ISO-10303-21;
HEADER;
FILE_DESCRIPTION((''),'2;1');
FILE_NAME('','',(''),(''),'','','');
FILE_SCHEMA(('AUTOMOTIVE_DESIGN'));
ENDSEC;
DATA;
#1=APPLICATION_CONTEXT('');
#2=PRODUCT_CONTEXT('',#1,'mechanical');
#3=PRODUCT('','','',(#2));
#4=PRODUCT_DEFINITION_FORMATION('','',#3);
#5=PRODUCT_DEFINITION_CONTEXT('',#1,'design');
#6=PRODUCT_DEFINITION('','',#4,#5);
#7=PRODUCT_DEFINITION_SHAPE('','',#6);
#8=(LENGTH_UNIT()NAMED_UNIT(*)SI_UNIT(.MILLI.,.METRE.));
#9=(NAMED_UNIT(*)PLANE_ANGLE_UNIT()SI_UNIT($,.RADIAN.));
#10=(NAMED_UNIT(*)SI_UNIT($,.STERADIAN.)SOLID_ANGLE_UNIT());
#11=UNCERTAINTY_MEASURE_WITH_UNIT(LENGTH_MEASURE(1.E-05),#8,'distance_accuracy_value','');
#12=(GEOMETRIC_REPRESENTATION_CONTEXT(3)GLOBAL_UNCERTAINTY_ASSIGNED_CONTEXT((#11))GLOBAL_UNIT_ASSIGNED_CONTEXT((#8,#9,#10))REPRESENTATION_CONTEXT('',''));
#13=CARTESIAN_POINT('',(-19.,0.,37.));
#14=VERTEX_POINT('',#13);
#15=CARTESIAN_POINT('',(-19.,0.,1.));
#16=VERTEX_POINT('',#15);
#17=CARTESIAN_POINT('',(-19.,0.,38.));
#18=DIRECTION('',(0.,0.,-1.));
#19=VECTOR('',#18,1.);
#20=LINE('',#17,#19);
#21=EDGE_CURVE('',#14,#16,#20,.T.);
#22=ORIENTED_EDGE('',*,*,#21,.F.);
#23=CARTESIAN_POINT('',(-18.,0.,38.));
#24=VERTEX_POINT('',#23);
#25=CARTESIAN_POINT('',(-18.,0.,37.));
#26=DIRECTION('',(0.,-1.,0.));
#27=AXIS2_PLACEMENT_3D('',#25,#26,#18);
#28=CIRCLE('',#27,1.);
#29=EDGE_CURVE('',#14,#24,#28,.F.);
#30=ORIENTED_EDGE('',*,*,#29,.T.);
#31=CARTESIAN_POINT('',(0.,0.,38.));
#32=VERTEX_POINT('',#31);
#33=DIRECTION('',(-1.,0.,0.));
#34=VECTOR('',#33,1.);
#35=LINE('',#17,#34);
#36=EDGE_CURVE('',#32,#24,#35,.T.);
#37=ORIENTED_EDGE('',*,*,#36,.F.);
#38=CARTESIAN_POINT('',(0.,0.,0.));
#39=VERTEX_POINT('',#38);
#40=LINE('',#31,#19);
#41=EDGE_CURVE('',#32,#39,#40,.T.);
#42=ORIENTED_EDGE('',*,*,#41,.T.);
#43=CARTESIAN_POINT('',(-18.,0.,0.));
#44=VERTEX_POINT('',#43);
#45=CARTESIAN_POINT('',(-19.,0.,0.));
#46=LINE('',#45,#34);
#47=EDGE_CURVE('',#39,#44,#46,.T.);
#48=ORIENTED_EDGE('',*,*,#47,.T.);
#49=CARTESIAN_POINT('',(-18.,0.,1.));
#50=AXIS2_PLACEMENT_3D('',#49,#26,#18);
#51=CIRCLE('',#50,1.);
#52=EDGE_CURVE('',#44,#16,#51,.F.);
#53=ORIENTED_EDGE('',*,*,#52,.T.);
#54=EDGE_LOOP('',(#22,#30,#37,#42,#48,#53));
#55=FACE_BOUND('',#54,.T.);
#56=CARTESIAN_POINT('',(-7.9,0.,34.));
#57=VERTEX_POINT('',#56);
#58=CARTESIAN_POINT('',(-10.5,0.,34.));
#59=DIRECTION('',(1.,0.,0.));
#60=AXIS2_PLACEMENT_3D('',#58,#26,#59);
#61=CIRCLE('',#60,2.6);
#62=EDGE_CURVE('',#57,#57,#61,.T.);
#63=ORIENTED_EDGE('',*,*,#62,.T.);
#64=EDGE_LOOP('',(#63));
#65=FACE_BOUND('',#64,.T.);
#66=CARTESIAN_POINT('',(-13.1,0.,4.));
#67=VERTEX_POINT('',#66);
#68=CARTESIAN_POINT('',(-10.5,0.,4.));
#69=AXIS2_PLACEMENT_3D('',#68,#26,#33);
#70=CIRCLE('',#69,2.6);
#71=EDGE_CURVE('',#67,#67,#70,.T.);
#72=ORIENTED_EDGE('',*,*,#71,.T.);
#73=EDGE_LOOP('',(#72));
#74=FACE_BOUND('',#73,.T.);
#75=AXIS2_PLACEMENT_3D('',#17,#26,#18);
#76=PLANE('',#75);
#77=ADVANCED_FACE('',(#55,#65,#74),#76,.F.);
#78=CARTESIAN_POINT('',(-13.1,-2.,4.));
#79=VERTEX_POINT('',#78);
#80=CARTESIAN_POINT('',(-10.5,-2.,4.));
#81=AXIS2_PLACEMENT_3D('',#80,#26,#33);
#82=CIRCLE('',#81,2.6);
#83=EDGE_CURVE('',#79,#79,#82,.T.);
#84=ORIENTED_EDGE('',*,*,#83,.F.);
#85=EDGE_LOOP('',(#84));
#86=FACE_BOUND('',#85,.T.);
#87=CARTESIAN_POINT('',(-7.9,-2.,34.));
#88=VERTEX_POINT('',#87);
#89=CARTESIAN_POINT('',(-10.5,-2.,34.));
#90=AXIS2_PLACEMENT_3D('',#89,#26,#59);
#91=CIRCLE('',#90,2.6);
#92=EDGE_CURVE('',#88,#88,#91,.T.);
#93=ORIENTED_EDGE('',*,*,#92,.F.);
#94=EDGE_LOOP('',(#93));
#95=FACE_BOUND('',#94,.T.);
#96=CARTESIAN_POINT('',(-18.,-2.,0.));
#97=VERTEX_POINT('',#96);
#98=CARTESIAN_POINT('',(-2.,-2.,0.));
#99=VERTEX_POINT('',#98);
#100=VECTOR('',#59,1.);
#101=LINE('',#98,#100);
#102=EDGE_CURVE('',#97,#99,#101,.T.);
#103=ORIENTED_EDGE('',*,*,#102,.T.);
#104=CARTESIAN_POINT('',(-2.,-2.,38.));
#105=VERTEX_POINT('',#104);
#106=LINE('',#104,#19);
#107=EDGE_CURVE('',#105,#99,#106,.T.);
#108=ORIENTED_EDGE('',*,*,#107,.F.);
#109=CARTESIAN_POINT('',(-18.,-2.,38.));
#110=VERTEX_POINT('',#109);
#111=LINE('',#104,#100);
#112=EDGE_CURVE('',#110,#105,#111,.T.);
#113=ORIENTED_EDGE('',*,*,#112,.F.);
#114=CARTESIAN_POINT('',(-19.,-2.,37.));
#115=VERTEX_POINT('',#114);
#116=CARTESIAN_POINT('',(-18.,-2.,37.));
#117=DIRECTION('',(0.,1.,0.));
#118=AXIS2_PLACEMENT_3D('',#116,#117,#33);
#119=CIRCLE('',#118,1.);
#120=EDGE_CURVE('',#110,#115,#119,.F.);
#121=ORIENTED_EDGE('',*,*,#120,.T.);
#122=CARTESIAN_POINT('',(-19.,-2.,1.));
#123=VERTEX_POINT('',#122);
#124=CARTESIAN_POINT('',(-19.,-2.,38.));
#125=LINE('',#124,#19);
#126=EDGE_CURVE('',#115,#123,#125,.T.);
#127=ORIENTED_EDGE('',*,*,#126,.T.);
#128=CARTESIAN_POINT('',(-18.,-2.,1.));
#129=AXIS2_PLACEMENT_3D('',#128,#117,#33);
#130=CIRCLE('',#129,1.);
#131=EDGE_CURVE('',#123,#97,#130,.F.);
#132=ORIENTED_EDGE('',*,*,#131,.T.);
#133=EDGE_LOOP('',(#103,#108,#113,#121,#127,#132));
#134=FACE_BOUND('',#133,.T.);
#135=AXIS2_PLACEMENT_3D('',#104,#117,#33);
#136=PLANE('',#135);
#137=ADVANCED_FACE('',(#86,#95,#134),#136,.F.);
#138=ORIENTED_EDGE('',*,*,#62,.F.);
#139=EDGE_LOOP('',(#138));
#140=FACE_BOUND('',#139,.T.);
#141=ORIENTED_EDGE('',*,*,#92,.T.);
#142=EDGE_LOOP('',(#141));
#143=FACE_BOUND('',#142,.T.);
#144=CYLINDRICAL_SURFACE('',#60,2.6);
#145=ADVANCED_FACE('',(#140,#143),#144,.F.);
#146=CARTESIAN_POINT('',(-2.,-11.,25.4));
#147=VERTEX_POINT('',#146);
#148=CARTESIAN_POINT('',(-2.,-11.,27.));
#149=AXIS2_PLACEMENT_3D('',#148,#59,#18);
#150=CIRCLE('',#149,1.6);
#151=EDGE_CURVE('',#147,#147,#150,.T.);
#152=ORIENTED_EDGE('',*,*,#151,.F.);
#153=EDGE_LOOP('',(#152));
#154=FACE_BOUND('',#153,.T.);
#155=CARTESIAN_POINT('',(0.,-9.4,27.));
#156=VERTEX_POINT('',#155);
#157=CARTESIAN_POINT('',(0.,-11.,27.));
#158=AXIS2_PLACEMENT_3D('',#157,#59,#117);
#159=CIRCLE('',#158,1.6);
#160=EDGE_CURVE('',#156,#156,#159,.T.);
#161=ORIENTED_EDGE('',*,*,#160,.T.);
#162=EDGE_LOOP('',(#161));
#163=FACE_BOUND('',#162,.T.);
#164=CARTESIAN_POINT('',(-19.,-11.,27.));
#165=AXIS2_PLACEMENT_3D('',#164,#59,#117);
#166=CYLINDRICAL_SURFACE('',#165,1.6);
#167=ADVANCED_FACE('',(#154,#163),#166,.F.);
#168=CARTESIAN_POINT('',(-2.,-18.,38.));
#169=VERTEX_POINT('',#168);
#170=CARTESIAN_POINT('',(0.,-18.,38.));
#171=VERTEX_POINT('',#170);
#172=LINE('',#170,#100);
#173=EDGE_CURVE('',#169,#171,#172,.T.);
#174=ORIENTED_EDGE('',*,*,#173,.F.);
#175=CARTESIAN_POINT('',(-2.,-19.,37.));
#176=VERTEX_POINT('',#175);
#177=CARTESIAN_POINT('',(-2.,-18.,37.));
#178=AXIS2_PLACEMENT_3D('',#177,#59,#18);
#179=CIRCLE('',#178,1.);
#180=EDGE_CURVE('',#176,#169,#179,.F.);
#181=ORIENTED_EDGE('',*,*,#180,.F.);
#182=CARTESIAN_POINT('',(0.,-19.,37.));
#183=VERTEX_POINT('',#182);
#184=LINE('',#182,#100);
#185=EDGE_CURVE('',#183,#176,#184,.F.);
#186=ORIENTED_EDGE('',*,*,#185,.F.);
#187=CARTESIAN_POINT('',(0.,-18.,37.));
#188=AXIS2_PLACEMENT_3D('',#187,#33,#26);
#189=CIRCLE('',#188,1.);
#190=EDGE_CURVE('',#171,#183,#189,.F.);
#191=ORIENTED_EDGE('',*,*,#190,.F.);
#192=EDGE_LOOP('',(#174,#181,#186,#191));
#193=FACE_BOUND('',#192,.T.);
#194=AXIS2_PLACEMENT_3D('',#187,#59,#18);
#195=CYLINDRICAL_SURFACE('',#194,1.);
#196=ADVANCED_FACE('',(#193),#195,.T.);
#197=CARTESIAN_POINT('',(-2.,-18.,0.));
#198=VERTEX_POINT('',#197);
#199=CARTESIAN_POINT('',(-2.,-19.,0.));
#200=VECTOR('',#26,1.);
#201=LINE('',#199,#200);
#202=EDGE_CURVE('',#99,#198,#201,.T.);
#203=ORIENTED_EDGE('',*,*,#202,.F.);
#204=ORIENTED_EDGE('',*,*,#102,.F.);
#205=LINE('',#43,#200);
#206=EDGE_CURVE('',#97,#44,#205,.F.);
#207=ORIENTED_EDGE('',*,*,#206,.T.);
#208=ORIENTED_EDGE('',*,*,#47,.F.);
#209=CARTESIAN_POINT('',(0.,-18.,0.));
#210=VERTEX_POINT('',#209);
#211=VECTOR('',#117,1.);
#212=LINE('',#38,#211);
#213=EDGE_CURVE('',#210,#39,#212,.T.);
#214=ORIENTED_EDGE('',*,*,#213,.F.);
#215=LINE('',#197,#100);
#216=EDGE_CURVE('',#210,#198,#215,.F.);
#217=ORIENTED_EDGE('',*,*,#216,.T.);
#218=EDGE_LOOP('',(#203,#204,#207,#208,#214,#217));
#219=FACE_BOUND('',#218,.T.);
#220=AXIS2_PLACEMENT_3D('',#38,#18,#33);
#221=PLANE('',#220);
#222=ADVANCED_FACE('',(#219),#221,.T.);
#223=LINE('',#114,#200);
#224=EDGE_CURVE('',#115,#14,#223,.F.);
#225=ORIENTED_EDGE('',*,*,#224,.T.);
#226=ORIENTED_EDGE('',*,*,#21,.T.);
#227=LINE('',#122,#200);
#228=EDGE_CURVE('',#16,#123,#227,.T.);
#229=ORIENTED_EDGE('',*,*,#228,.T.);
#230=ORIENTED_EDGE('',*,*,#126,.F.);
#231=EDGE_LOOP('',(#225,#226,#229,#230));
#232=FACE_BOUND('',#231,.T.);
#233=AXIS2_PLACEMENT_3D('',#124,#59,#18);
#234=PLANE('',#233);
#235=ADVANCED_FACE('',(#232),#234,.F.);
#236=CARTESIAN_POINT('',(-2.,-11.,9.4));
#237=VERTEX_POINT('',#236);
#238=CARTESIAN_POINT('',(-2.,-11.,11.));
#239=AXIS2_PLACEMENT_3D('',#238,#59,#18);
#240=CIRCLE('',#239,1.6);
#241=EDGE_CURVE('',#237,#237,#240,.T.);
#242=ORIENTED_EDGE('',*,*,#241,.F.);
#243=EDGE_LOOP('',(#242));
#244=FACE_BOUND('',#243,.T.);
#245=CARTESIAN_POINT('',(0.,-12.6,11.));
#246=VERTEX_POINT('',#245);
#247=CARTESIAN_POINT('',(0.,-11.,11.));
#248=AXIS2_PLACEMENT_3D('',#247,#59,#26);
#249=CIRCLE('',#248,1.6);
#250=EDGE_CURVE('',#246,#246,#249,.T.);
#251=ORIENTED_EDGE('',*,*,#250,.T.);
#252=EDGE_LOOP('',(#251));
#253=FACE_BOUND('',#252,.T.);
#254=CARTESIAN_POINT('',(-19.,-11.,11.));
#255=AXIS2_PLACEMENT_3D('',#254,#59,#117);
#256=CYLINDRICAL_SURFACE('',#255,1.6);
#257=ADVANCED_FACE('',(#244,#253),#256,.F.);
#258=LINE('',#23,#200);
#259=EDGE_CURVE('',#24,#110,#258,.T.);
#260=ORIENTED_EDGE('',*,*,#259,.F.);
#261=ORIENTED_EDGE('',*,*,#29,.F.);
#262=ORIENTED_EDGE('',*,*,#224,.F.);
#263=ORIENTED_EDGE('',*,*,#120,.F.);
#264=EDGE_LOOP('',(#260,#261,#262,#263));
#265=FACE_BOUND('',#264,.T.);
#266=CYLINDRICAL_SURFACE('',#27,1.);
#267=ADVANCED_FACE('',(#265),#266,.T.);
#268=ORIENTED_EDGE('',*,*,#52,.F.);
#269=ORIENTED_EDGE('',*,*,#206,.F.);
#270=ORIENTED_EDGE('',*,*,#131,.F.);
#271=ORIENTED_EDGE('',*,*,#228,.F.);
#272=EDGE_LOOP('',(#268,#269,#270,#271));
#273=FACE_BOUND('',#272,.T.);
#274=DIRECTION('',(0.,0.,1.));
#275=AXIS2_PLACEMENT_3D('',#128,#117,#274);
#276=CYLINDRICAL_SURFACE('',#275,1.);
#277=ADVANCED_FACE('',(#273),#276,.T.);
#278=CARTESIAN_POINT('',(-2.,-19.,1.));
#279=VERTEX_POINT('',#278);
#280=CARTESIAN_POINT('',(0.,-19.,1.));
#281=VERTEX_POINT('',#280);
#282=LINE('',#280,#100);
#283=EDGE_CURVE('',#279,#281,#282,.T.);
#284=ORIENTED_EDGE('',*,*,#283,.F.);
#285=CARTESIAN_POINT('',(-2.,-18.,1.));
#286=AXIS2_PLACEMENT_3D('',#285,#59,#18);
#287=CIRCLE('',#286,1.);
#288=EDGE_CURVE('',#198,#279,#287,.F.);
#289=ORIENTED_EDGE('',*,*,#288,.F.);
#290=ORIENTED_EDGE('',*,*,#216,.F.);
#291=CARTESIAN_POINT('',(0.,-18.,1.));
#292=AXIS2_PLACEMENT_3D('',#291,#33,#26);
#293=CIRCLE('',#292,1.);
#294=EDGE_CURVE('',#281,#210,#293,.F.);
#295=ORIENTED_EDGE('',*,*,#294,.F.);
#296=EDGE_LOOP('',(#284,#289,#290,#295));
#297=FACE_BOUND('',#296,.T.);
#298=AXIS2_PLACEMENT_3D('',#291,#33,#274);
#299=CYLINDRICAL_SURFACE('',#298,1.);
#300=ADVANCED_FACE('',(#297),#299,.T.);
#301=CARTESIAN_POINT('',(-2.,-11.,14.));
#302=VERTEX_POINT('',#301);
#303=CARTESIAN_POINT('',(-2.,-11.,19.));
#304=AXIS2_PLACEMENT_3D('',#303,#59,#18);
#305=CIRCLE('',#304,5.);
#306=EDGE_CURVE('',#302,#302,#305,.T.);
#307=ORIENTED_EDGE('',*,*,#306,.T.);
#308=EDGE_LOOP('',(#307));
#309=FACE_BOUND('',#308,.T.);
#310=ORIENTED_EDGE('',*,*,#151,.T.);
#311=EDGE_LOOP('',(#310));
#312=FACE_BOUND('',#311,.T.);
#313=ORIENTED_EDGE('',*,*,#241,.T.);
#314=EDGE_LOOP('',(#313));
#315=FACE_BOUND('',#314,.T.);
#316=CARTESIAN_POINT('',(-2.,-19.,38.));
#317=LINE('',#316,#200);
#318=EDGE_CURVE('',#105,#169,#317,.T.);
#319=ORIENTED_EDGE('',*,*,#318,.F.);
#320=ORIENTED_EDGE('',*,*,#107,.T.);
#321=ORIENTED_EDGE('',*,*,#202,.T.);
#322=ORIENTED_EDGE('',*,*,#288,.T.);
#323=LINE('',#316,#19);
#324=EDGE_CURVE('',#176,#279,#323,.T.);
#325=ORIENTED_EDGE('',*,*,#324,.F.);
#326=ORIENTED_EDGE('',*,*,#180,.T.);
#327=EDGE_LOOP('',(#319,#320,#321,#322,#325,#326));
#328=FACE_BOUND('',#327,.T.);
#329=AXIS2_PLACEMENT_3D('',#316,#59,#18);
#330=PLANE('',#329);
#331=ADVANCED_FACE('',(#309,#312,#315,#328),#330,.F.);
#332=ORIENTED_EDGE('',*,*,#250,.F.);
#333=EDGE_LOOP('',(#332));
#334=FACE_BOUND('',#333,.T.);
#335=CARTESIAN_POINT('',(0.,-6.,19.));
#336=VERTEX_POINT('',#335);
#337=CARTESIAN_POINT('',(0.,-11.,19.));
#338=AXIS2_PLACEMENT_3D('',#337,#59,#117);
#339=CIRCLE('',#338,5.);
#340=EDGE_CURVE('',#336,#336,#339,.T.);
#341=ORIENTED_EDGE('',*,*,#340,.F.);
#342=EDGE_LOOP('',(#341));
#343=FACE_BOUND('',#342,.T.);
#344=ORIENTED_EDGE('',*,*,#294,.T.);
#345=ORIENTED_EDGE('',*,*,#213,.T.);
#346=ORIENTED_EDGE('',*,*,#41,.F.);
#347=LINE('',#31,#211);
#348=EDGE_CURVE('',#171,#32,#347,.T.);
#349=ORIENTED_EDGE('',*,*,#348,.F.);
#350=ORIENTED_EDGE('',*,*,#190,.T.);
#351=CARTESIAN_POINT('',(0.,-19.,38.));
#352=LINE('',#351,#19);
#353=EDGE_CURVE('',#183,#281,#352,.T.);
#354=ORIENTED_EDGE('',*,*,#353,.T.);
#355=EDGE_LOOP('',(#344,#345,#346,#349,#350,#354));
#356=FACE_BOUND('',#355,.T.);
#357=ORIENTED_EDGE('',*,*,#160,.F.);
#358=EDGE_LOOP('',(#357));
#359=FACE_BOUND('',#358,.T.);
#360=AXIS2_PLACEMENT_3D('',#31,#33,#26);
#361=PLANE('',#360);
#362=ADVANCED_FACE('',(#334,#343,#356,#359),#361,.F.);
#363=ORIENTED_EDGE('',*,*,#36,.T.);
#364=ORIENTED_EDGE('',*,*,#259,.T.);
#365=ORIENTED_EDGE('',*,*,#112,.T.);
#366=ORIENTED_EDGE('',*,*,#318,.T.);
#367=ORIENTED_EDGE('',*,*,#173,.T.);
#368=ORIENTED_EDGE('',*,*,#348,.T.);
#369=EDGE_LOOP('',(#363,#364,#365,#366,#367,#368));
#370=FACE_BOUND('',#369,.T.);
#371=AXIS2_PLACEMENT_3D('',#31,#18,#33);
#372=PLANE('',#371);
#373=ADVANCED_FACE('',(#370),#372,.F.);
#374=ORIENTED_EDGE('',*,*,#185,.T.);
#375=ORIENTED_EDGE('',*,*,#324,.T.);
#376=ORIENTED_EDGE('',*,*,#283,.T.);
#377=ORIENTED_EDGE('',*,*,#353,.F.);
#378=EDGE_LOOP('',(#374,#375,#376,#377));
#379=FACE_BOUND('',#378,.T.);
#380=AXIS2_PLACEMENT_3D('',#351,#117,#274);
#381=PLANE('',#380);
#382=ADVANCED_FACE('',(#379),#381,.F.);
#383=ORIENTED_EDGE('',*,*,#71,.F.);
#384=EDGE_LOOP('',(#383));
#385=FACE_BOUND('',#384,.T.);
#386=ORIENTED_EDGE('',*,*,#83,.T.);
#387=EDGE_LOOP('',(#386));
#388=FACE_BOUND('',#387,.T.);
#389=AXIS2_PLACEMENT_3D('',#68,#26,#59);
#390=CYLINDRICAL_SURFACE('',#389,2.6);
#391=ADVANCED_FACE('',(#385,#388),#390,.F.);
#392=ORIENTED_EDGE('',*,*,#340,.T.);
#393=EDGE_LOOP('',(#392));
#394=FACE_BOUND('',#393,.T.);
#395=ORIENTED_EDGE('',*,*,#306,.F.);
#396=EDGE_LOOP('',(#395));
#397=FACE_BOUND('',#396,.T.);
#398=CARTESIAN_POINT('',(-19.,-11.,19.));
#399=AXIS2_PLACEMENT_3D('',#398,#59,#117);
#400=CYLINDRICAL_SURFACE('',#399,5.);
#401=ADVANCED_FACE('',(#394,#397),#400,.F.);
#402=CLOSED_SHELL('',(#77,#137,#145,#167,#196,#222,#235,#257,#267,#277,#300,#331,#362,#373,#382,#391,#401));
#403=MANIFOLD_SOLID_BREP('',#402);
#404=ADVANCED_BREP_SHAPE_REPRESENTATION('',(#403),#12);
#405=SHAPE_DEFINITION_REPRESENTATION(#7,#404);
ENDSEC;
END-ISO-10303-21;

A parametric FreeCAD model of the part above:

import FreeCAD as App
import Part
import Sketcher
from FreeCAD import Vector


def edges_at(feature, points):
    """Names of the edges that pass closest to the given points."""
    edges = feature.Shape.Edges
    near = lambda p: min(range(len(edges)), key=lambda i: edges[i].distToShape(Part.Vertex(*p))[0])
    return sorted({f"Edge{near(p) + 1}" for p in points})


def add_polygon(sketch, points):
    """Adds a closed chain of lines whose ends are joined by coincident constraints."""
    first, n = sketch.GeometryCount, len(points)
    for a, b in zip(points, points[1:] + points[:1]):
        sketch.addGeometry(Part.LineSegment(App.Vector(*a, 0), App.Vector(*b, 0)), False)
    for i in range(n):
        sketch.addConstraint(Sketcher.Constraint("Coincident", first + i, 2, first + (i + 1) % n, 1))

doc = App.newDocument("Part")
body = doc.addObject("PartDesign::Body", "Body")

# Sketch on XY plane
sketch1 = doc.addObject("Sketcher::SketchObject", "Sketch")
body.addObject(sketch1)
sketch1.AttachmentSupport = (doc.XY_Plane, [""])
sketch1.MapMode = "FlatFace"
add_polygon(sketch1, [(0, -19), (0, 0), (-19, 0), (-19, -2), (-2, -2), (-2, -19)])  # lines 0-5
sketch1.addConstraint(Sketcher.Constraint("Vertical", 0))
sketch1.addConstraint(Sketcher.Constraint("Horizontal", 1))
sketch1.addConstraint(Sketcher.Constraint("Vertical", 2))
sketch1.addConstraint(Sketcher.Constraint("Horizontal", 3))
sketch1.addConstraint(Sketcher.Constraint("Vertical", 4))
sketch1.addConstraint(Sketcher.Constraint("Horizontal", 5))
sketch1.addConstraint(Sketcher.Constraint("Coincident", 0, 2, -1, 1))
sketch1.addConstraint(Sketcher.Constraint("Equal", 1, 0))
sketch1.addConstraint(Sketcher.Constraint("Equal", 5, 2))
sketch1.addConstraint(Sketcher.Constraint("DistanceX", 1, 2, 1, 1, 19.0))
sketch1.addConstraint(Sketcher.Constraint("DistanceX", 3, 1, 3, 2, 17.0))
pad1 = doc.addObject("PartDesign::Pad", "Pad")
body.addObject(pad1)
pad1.Profile = sketch1
pad1.Length = 38

# Sketch on YZ plane
sketch2 = doc.addObject("Sketcher::SketchObject", "Sketch001")
body.addObject(sketch2)
sketch2.AttachmentSupport = (doc.YZ_Plane, [""])
sketch2.MapMode = "FlatFace"
sketch2.addGeometry(Part.Circle(Vector(-11, 19, 0), Vector(0, 0, 1), 5), False)
sketch2.addGeometry(Part.Circle(Vector(-11, 27, 0), Vector(0, 0, 1), 1.6), False)
sketch2.addGeometry(Part.Circle(Vector(-11, 11, 0), Vector(0, 0, 1), 1.6), False)
sketch2.addConstraint(Sketcher.Constraint("Equal", 1, 2))
sketch2.addConstraint(Sketcher.Constraint("Vertical", 0, 3, 1, 3))
sketch2.addConstraint(Sketcher.Constraint("Vertical", 1, 3, 2, 3))
sketch2.addConstraint(Sketcher.Constraint("Diameter", 0, 10.0))
sketch2.addConstraint(Sketcher.Constraint("Diameter", 1, 3.2))
sketch2.addConstraint(Sketcher.Constraint("DistanceX", 0, 3, -1, 1, 11.0))
sketch2.addConstraint(Sketcher.Constraint("DistanceY", -1, 1, 0, 3, 19.0))
sketch2.addConstraint(Sketcher.Constraint("DistanceY", -1, 1, 1, 3, 27.0))
sketch2.addConstraint(Sketcher.Constraint("DistanceY", -1, 1, 2, 3, 11.0))
pocket1 = doc.addObject("PartDesign::Pocket", "Pocket")
body.addObject(pocket1)
pocket1.Profile = sketch2
pocket1.Type = "ThroughAll"

# Sketch on XZ plane
sketch3 = doc.addObject("Sketcher::SketchObject", "Sketch002")
body.addObject(sketch3)
sketch3.AttachmentSupport = (doc.XZ_Plane, [""])
sketch3.MapMode = "FlatFace"
sketch3.AttachmentOffset = App.Placement(Vector(0, 0, 2), App.Rotation())
sketch3.addGeometry(Part.Circle(Vector(-10.5, 34, 0), Vector(0, 0, 1), 2.6), False)
sketch3.addGeometry(Part.Circle(Vector(-10.5, 4, 0), Vector(0, 0, 1), 2.6), False)
sketch3.addConstraint(Sketcher.Constraint("Equal", 0, 1))
sketch3.addConstraint(Sketcher.Constraint("Vertical", 0, 3, 1, 3))
sketch3.addConstraint(Sketcher.Constraint("Diameter", 0, 5.2))
sketch3.addConstraint(Sketcher.Constraint("DistanceY", -1, 1, 0, 3, 34.0))
sketch3.addConstraint(Sketcher.Constraint("DistanceY", -1, 1, 1, 3, 4.0))
sketch3.addConstraint(Sketcher.Constraint("DistanceX", 0, 3, -1, 1, 10.5))
pocket2 = doc.addObject("PartDesign::Pocket", "Pocket001")
body.addObject(pocket2)
pocket2.Profile = sketch3
pocket2.Type = "ThroughAll"
doc.recompute()

fillet = doc.addObject("PartDesign::Fillet", "Fillet")
body.addObject(fillet)
fillet.Base = (pocket2, edges_at(pocket2, [
    (-1, -19, 38),
    (-1, -19, 0),
    (-19, -1, 38),
    (-19, -1, 0),
]))
fillet.Radius = 1

doc.recompute()
